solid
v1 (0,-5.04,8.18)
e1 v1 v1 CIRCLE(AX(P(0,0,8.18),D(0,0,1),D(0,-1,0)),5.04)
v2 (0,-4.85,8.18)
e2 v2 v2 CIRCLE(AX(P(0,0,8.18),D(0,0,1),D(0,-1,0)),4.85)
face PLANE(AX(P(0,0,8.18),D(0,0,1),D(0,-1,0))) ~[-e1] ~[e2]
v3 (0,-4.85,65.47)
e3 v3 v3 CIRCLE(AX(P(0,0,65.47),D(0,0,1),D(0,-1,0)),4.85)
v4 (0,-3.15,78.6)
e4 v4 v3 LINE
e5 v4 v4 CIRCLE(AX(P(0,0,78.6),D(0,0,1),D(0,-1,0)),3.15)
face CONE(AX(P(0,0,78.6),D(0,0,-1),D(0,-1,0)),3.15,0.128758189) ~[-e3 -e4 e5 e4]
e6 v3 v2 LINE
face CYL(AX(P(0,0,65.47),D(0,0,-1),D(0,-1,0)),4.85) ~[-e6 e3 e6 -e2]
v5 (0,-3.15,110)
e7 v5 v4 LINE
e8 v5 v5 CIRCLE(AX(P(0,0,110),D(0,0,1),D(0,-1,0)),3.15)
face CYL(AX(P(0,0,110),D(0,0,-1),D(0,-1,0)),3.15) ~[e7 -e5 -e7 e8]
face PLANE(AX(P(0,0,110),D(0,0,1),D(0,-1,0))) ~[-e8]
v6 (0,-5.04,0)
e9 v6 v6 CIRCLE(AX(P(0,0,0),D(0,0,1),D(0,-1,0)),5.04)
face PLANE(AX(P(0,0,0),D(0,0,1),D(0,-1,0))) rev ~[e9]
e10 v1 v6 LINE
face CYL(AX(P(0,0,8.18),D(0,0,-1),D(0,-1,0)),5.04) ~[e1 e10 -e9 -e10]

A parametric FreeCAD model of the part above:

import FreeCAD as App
import Part
import Sketcher


def add_polygon(sketch, points):
    """Adds a closed chain of lines whose ends are joined by coincident constraints."""
    first, n = sketch.GeometryCount, len(points)
    for a, b in zip(points, points[1:] + points[:1]):
        sketch.addGeometry(Part.LineSegment(App.Vector(*a, 0), App.Vector(*b, 0)), False)
    for i in range(n):
        sketch.addConstraint(Sketcher.Constraint("Coincident", first + i, 2, first + (i + 1) % n, 1))

doc = App.newDocument("Part")
body = doc.addObject("PartDesign::Body", "Body")

# Sketch on YZ plane
sketch1 = body.newObject("Sketcher::SketchObject", "Sketch")
sketch1.AttachmentSupport = (doc.getObject("YZ_Plane"), [""])
sketch1.MapMode = "FlatFace"
add_polygon(sketch1, [(-5.04, 0), (0, 0), (0, 110), (-3.15, 110), (-3.15, 78.6), (-4.85, 65.47), (-4.85, 8.18), (-5.04, 8.18)])  # lines 0-7
sketch1.addConstraint([
    Sketcher.Constraint("Horizontal", 0),
    Sketcher.Constraint("Vertical", 1),
    Sketcher.Constraint("Horizontal", 2),
    Sketcher.Constraint("Vertical", 3),
    Sketcher.Constraint("Vertical", 5),
    Sketcher.Constraint("Horizontal", 6),
    Sketcher.Constraint("Vertical", 7),
    Sketcher.Constraint("Coincident", 0, 2, -1, 1),
    Sketcher.Constraint("DistanceY", 1, 1, 1, 2, 110.0),
    Sketcher.Constraint("DistanceY", 3, 2, 3, 1, 31.4),
    Sketcher.Constraint("DistanceX", 0, 1, 0, 2, 5.04),
    Sketcher.Constraint("DistanceX", 2, 2, 2, 1, 3.15),
    Sketcher.Constraint("DistanceX", 6, 2, 6, 1, 0.19),
    Sketcher.Constraint("DistanceY", 5, 2, 5, 1, 57.29),
    Sketcher.Constraint("DistanceY", 7, 2, 7, 1, 8.18),
])
revolution = body.newObject("PartDesign::Revolution", "Revolution")
revolution.Profile = sketch1
revolution.ReferenceAxis = (sketch1, ["V_Axis"])
revolution.Angle = 360

doc.recompute()
